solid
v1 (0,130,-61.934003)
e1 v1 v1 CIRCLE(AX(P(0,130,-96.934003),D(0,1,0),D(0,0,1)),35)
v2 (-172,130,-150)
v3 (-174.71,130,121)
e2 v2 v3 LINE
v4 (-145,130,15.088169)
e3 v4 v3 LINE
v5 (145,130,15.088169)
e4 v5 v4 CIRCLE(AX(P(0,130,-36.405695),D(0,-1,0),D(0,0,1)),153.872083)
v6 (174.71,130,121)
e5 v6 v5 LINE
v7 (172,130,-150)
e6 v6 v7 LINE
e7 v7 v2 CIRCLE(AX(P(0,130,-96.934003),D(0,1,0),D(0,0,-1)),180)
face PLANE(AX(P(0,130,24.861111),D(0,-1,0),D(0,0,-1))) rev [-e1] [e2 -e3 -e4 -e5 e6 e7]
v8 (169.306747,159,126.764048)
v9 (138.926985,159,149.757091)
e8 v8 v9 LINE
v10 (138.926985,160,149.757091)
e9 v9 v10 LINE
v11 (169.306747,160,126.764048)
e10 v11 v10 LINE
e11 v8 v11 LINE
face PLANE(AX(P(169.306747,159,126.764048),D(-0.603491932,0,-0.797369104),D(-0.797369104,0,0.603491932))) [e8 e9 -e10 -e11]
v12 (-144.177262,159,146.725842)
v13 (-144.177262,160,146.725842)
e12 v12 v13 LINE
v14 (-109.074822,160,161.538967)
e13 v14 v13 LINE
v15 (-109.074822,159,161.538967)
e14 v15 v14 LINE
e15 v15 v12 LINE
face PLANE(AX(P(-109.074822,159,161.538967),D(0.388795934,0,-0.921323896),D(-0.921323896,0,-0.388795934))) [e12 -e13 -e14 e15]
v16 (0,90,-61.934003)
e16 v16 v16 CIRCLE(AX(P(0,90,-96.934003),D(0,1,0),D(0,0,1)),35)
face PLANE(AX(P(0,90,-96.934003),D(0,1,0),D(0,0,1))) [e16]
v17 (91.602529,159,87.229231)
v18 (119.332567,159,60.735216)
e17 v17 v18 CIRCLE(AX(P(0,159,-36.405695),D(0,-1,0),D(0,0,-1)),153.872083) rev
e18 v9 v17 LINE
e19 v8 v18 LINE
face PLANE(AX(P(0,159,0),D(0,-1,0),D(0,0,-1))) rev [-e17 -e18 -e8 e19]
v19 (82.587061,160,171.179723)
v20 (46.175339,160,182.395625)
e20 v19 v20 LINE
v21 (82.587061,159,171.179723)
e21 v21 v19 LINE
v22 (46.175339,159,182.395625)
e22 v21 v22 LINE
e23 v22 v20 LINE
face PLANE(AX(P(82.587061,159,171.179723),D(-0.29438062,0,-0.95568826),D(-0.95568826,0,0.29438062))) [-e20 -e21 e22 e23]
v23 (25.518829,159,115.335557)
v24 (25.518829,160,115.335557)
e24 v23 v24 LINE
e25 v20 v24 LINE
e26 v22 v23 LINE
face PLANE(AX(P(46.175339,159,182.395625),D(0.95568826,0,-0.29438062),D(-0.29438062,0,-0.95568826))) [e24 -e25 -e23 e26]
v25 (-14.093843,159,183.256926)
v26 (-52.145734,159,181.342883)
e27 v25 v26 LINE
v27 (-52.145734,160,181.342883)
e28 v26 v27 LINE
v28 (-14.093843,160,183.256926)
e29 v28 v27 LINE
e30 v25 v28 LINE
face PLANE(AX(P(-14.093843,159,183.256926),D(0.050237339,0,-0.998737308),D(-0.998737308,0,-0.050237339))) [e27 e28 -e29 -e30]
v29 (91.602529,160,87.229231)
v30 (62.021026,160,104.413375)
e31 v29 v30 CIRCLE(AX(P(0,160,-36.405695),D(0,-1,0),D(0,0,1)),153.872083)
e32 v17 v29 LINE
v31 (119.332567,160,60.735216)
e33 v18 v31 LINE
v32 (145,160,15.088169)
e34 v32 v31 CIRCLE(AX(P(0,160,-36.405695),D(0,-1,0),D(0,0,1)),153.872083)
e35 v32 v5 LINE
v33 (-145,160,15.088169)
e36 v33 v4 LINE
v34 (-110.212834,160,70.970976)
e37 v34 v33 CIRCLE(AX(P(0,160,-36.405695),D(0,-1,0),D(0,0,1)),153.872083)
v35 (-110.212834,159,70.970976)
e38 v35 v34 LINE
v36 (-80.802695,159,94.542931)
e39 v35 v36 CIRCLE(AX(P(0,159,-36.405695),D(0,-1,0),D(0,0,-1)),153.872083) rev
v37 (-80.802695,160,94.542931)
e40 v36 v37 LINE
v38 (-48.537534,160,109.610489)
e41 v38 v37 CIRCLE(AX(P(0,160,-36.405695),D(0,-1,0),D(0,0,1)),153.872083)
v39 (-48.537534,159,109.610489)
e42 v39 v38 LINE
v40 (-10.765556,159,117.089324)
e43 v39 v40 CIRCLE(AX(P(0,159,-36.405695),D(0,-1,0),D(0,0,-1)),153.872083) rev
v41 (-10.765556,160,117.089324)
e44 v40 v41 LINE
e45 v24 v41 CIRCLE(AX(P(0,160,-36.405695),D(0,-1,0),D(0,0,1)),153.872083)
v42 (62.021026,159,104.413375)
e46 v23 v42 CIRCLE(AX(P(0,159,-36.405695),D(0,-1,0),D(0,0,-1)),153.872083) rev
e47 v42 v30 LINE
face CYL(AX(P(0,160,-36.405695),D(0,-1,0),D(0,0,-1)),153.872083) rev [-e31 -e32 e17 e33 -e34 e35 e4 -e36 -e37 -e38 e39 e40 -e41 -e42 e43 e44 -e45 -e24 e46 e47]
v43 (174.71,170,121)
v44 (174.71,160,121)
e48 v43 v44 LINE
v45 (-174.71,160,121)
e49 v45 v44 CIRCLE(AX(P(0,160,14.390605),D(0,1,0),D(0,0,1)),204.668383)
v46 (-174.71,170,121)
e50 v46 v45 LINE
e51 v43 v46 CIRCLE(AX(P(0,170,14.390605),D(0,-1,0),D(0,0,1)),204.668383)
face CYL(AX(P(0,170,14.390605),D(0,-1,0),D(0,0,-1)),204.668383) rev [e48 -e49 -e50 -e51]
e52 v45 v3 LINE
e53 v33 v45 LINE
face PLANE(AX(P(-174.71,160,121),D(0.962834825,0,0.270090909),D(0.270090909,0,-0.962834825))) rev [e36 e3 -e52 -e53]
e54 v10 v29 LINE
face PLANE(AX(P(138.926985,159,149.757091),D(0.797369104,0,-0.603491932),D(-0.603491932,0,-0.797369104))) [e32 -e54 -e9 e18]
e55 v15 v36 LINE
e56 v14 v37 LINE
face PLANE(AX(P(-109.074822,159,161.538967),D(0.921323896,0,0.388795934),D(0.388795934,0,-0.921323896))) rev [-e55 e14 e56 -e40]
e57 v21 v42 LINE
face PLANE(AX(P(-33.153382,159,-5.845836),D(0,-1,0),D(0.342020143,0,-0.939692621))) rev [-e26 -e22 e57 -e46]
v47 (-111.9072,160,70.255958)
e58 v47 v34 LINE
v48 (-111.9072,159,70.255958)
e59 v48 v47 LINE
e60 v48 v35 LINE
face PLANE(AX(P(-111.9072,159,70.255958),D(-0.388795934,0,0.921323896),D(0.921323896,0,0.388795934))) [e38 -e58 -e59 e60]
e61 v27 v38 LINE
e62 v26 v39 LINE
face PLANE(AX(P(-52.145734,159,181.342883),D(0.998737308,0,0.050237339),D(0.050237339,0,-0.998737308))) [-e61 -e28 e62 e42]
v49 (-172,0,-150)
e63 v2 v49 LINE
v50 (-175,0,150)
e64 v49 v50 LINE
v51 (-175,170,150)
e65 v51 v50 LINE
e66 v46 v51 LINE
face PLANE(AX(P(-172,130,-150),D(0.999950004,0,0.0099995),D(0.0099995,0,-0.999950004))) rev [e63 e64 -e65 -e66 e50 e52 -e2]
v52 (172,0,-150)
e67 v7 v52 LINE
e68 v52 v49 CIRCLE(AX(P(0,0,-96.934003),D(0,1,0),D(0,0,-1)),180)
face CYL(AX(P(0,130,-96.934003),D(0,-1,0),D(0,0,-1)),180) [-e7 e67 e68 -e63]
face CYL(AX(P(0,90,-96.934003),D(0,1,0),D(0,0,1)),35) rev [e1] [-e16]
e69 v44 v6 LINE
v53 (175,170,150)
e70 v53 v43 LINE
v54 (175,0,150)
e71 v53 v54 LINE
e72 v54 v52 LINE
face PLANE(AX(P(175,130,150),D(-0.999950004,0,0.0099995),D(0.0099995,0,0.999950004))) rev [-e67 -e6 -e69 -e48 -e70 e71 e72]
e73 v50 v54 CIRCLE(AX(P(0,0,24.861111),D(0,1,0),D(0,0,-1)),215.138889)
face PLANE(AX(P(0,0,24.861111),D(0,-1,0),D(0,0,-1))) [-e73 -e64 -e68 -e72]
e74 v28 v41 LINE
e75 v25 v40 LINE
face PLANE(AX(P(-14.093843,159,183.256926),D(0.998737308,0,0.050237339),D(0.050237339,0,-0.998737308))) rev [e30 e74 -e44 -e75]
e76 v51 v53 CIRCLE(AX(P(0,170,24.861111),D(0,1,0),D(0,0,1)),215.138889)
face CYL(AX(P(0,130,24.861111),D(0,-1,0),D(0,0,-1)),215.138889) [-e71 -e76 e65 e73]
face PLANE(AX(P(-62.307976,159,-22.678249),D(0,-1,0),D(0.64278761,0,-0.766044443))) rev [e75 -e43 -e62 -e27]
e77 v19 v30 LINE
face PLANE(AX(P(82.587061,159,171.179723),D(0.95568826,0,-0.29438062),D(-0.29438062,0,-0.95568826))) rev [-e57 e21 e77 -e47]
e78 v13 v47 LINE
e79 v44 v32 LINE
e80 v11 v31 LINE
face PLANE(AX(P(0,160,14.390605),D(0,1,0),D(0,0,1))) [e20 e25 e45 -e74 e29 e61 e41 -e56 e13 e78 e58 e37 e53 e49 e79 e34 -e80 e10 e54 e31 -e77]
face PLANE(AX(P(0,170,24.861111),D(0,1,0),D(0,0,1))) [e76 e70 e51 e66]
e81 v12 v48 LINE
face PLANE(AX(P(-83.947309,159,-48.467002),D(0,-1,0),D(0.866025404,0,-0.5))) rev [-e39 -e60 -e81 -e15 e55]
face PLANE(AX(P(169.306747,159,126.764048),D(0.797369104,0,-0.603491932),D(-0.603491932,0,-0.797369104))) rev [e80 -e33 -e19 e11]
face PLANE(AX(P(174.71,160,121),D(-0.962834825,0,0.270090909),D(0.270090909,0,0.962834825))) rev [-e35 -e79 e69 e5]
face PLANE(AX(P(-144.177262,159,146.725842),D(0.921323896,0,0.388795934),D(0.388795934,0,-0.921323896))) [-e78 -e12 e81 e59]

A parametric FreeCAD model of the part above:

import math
import FreeCAD as App
import Part
import Sketcher

V = App.Vector
Q = App.Units.Quantity


def add_polygon(sketch, points):
    """Adds a closed chain of lines whose ends are joined by coincident constraints."""
    first, n = sketch.GeometryCount, len(points)
    for a, b in zip(points, points[1:] + points[:1]):
        sketch.addGeometry(Part.LineSegment(App.Vector(*a, 0), App.Vector(*b, 0)), False)
    for i in range(n):
        sketch.addConstraint(Sketcher.Constraint("Coincident", first + i, 2, first + (i + 1) % n, 1))

doc = App.newDocument("Part")
body = doc.addObject("PartDesign::Body", "Body")

# Sketch on XZ plane
sketch1 = body.newObject("Sketcher::SketchObject", "Sketch")
sketch1.AttachmentSupport = (doc.getObject("XZ_Plane"), [""])
sketch1.MapMode = "FlatFace"
sketch1.addGeometry([
    Part.LineSegment(V(-172, -150, 0), V(-175, 150, 0)),
    Part.ArcOfCircle(Part.Circle(V(0, 25, 0), V(0, 0, 1), 215), math.radians(36), math.radians(144)),
    Part.LineSegment(V(175, 150, 0), V(172, -150, 0)),
    Part.ArcOfCircle(Part.Circle(V(0, -97, 0), V(0, 0, 1), 180), math.radians(-163), math.radians(-17)),
], False)
sketch1.addConstraint([
    Sketcher.Constraint("Coincident", 0, 2, 1, 2),
    Sketcher.Constraint("Coincident", 1, 1, 2, 1),
    Sketcher.Constraint("Coincident", 2, 2, 3, 2),
    Sketcher.Constraint("Coincident", 3, 1, 0, 1),
    Sketcher.Constraint("Symmetric", 0, 2, 1, 1, -2),
    Sketcher.Constraint("Symmetric", 2, 2, 3, 1, -2),
    Sketcher.Constraint("Radius", 3, Q("180 mm")),
    Sketcher.Constraint("DistanceX", 0, 2, -1, 1, Q("175 mm")),
    Sketcher.Constraint("DistanceY", -1, 1, 0, 2, Q("150 mm")),
    Sketcher.Constraint("DistanceX", -1, 1, 2, 2, Q("172 mm")),
    Sketcher.Constraint("DistanceY", 2, 2, -1, 1, Q("150 mm")),
    Sketcher.Constraint("Radius", 1, Q("215.138889 mm")),
])
pad1 = body.newObject("PartDesign::Pad", "Pad")
pad1.Profile = sketch1
pad1.Length = 130
pad1.Reversed = True

# Sketch on XZ plane
sketch2 = body.newObject("Sketcher::SketchObject", "Sketch001")
sketch2.AttachmentSupport = (doc.getObject("XZ_Plane"), [""])
sketch2.MapMode = "FlatFace"
sketch2.AttachmentOffset = App.Placement(V(0, 0, -130), App.Rotation())
sketch2.addGeometry([
    Part.LineSegment(V(-175, 121, 0), V(-175, 150, 0)),
    Part.ArcOfCircle(Part.Circle(V(0, 25, 0), V(0, 0, 1), 215), math.radians(36), math.radians(144)),
    Part.LineSegment(V(175, 150, 0), V(175, 121, 0)),
    Part.ArcOfCircle(Part.Circle(V(0, 14, 0), V(0, 0, 1), 205), math.radians(31), math.radians(149)),
], False)
sketch2.addConstraint([
    Sketcher.Constraint("Coincident", 0, 2, 1, 2),
    Sketcher.Constraint("Coincident", 1, 1, 2, 1),
    Sketcher.Constraint("Coincident", 2, 2, 3, 1),
    Sketcher.Constraint("Coincident", 3, 2, 0, 1),
    Sketcher.Constraint("Symmetric", 0, 2, 1, 1, -2),
    Sketcher.Constraint("Symmetric", 2, 2, 3, 2, -2),
    Sketcher.Constraint("DistanceX", 0, 2, -1, 1, Q("175 mm")),
    Sketcher.Constraint("DistanceY", -1, 1, 0, 2, Q("150 mm")),
    Sketcher.Constraint("DistanceY", -1, 1, 2, 2, Q("121 mm")),
    Sketcher.Constraint("DistanceX", -1, 1, 2, 2, Q("174.71 mm")),
    Sketcher.Constraint("Radius", 1, Q("215.138889 mm")),
    Sketcher.Constraint("Radius", 3, Q("204.668383 mm")),
])
pad2 = body.newObject("PartDesign::Pad", "Pad001")
pad2.Profile = sketch2
pad2.Length = 40
pad2.Reversed = True

# Sketch on XZ plane
sketch3 = body.newObject("Sketcher::SketchObject", "Sketch002")
sketch3.AttachmentSupport = (doc.getObject("XZ_Plane"), [""])
sketch3.MapMode = "FlatFace"
sketch3.AttachmentOffset = App.Placement(V(0, 0, -130), App.Rotation())
sketch3.addGeometry(Part.Circle(V(0, -97, 0), V(0, 0, 1), 35), False)
sketch3.addConstraint([
    Sketcher.Constraint("PointOnObject", 0, 3, -2),
    Sketcher.Constraint("Diameter", 0, Q("70 mm")),
    Sketcher.Constraint("DistanceY", 0, 3, -1, 1, Q("96.934003 mm")),
])
pocket1 = body.newObject("PartDesign::Pocket", "Pocket")
pocket1.Profile = sketch3
pocket1.Length = 40
pocket1.Reversed = True

# Sketch on XZ plane
sketch4 = body.newObject("Sketcher::SketchObject", "Sketch003")
sketch4.AttachmentSupport = (doc.getObject("XZ_Plane"), [""])
sketch4.MapMode = "FlatFace"
sketch4.AttachmentOffset = App.Placement(V(0, 0, -130), App.Rotation())
sketch4.addGeometry([
    Part.LineSegment(V(-145, 15, 0), V(-175, 121, 0)),
    Part.ArcOfCircle(Part.Circle(V(0, 14, 0), V(0, 0, 1), 205), math.radians(31), math.radians(149)),
    Part.LineSegment(V(175, 121, 0), V(145, 15, 0)),
    Part.ArcOfCircle(Part.Circle(V(0, -36, 0), V(0, 0, 1), 154), math.radians(20), math.radians(160)),
], False)
sketch4.addConstraint([
    Sketcher.Constraint("Coincident", 0, 2, 1, 2),
    Sketcher.Constraint("Coincident", 1, 1, 2, 1),
    Sketcher.Constraint("Coincident", 2, 2, 3, 1),
    Sketcher.Constraint("Coincident", 3, 2, 0, 1),
    Sketcher.Constraint("Symmetric", 0, 2, 1, 1, -2),
    Sketcher.Constraint("Symmetric", 2, 2, 3, 2, -2),
    Sketcher.Constraint("Distance", 0, Q("110 mm")),
    Sketcher.Constraint("DistanceY", -1, 1, 0, 2, Q("121 mm")),
    Sketcher.Constraint("DistanceX", -1, 1, 2, 2, Q("145 mm")),
    Sketcher.Constraint("DistanceX", 0, 2, -1, 1, Q("174.71 mm")),
    Sketcher.Constraint("Radius", 1, Q("204.668383 mm")),
    Sketcher.Constraint("Radius", 3, Q("153.872083 mm")),
])
pad3 = body.newObject("PartDesign::Pad", "Pad002")
pad3.Profile = sketch4
pad3.Length = 30
pad3.Reversed = True

# Sketch on XZ plane
sketch5 = body.newObject("Sketcher::SketchObject", "Sketch004")
sketch5.AttachmentSupport = (doc.getObject("XZ_Plane"), [""])
sketch5.MapMode = "FlatFace"
sketch5.AttachmentOffset = App.Placement(V(0, 0, -160), App.Rotation())
add_polygon(sketch5, [(169, 127), (119, 61), (89, 84), (139, 150)])  # lines 0-3
sketch5.addConstraint([
    Sketcher.Constraint("Perpendicular", 0, 1),
    Sketcher.Constraint("Perpendicular", 1, 2),
    Sketcher.Constraint("Perpendicular", 2, 3),
    Sketcher.Constraint("Distance", 0, Q("83 mm")),
    Sketcher.Constraint("Distance", 1, Q("38.1 mm")),
    Sketcher.Constraint("DistanceY", -1, 1, 2, 2, Q("149.757091 mm")),
    Sketcher.Constraint("DistanceY", -1, 1, 3, 2, Q("126.764048 mm")),
    Sketcher.Constraint("DistanceX", -1, 1, 0, 2, Q("119.216917 mm")),
])
pocket2 = body.newObject("PartDesign::Pocket", "Pocket001")
pocket2.Profile = sketch5
pocket2.Length = 1
pocket2.Reversed = True
doc.recompute()

datumline = body.newObject("PartDesign::Line", "DatumLine")
datumline.Placement = App.Placement(V(0, 0, -96.934003), App.Rotation(V(0, 0, 1), V(0, -1, 0)))
polarpattern = body.newObject("PartDesign::PolarPattern", "PolarPattern")
polarpattern.Originals = [pocket2]
polarpattern.Axis = (datumline, [""])
polarpattern.Angle = 60
polarpattern.Occurrences = 4
body.Tip = polarpattern

doc.recompute()
